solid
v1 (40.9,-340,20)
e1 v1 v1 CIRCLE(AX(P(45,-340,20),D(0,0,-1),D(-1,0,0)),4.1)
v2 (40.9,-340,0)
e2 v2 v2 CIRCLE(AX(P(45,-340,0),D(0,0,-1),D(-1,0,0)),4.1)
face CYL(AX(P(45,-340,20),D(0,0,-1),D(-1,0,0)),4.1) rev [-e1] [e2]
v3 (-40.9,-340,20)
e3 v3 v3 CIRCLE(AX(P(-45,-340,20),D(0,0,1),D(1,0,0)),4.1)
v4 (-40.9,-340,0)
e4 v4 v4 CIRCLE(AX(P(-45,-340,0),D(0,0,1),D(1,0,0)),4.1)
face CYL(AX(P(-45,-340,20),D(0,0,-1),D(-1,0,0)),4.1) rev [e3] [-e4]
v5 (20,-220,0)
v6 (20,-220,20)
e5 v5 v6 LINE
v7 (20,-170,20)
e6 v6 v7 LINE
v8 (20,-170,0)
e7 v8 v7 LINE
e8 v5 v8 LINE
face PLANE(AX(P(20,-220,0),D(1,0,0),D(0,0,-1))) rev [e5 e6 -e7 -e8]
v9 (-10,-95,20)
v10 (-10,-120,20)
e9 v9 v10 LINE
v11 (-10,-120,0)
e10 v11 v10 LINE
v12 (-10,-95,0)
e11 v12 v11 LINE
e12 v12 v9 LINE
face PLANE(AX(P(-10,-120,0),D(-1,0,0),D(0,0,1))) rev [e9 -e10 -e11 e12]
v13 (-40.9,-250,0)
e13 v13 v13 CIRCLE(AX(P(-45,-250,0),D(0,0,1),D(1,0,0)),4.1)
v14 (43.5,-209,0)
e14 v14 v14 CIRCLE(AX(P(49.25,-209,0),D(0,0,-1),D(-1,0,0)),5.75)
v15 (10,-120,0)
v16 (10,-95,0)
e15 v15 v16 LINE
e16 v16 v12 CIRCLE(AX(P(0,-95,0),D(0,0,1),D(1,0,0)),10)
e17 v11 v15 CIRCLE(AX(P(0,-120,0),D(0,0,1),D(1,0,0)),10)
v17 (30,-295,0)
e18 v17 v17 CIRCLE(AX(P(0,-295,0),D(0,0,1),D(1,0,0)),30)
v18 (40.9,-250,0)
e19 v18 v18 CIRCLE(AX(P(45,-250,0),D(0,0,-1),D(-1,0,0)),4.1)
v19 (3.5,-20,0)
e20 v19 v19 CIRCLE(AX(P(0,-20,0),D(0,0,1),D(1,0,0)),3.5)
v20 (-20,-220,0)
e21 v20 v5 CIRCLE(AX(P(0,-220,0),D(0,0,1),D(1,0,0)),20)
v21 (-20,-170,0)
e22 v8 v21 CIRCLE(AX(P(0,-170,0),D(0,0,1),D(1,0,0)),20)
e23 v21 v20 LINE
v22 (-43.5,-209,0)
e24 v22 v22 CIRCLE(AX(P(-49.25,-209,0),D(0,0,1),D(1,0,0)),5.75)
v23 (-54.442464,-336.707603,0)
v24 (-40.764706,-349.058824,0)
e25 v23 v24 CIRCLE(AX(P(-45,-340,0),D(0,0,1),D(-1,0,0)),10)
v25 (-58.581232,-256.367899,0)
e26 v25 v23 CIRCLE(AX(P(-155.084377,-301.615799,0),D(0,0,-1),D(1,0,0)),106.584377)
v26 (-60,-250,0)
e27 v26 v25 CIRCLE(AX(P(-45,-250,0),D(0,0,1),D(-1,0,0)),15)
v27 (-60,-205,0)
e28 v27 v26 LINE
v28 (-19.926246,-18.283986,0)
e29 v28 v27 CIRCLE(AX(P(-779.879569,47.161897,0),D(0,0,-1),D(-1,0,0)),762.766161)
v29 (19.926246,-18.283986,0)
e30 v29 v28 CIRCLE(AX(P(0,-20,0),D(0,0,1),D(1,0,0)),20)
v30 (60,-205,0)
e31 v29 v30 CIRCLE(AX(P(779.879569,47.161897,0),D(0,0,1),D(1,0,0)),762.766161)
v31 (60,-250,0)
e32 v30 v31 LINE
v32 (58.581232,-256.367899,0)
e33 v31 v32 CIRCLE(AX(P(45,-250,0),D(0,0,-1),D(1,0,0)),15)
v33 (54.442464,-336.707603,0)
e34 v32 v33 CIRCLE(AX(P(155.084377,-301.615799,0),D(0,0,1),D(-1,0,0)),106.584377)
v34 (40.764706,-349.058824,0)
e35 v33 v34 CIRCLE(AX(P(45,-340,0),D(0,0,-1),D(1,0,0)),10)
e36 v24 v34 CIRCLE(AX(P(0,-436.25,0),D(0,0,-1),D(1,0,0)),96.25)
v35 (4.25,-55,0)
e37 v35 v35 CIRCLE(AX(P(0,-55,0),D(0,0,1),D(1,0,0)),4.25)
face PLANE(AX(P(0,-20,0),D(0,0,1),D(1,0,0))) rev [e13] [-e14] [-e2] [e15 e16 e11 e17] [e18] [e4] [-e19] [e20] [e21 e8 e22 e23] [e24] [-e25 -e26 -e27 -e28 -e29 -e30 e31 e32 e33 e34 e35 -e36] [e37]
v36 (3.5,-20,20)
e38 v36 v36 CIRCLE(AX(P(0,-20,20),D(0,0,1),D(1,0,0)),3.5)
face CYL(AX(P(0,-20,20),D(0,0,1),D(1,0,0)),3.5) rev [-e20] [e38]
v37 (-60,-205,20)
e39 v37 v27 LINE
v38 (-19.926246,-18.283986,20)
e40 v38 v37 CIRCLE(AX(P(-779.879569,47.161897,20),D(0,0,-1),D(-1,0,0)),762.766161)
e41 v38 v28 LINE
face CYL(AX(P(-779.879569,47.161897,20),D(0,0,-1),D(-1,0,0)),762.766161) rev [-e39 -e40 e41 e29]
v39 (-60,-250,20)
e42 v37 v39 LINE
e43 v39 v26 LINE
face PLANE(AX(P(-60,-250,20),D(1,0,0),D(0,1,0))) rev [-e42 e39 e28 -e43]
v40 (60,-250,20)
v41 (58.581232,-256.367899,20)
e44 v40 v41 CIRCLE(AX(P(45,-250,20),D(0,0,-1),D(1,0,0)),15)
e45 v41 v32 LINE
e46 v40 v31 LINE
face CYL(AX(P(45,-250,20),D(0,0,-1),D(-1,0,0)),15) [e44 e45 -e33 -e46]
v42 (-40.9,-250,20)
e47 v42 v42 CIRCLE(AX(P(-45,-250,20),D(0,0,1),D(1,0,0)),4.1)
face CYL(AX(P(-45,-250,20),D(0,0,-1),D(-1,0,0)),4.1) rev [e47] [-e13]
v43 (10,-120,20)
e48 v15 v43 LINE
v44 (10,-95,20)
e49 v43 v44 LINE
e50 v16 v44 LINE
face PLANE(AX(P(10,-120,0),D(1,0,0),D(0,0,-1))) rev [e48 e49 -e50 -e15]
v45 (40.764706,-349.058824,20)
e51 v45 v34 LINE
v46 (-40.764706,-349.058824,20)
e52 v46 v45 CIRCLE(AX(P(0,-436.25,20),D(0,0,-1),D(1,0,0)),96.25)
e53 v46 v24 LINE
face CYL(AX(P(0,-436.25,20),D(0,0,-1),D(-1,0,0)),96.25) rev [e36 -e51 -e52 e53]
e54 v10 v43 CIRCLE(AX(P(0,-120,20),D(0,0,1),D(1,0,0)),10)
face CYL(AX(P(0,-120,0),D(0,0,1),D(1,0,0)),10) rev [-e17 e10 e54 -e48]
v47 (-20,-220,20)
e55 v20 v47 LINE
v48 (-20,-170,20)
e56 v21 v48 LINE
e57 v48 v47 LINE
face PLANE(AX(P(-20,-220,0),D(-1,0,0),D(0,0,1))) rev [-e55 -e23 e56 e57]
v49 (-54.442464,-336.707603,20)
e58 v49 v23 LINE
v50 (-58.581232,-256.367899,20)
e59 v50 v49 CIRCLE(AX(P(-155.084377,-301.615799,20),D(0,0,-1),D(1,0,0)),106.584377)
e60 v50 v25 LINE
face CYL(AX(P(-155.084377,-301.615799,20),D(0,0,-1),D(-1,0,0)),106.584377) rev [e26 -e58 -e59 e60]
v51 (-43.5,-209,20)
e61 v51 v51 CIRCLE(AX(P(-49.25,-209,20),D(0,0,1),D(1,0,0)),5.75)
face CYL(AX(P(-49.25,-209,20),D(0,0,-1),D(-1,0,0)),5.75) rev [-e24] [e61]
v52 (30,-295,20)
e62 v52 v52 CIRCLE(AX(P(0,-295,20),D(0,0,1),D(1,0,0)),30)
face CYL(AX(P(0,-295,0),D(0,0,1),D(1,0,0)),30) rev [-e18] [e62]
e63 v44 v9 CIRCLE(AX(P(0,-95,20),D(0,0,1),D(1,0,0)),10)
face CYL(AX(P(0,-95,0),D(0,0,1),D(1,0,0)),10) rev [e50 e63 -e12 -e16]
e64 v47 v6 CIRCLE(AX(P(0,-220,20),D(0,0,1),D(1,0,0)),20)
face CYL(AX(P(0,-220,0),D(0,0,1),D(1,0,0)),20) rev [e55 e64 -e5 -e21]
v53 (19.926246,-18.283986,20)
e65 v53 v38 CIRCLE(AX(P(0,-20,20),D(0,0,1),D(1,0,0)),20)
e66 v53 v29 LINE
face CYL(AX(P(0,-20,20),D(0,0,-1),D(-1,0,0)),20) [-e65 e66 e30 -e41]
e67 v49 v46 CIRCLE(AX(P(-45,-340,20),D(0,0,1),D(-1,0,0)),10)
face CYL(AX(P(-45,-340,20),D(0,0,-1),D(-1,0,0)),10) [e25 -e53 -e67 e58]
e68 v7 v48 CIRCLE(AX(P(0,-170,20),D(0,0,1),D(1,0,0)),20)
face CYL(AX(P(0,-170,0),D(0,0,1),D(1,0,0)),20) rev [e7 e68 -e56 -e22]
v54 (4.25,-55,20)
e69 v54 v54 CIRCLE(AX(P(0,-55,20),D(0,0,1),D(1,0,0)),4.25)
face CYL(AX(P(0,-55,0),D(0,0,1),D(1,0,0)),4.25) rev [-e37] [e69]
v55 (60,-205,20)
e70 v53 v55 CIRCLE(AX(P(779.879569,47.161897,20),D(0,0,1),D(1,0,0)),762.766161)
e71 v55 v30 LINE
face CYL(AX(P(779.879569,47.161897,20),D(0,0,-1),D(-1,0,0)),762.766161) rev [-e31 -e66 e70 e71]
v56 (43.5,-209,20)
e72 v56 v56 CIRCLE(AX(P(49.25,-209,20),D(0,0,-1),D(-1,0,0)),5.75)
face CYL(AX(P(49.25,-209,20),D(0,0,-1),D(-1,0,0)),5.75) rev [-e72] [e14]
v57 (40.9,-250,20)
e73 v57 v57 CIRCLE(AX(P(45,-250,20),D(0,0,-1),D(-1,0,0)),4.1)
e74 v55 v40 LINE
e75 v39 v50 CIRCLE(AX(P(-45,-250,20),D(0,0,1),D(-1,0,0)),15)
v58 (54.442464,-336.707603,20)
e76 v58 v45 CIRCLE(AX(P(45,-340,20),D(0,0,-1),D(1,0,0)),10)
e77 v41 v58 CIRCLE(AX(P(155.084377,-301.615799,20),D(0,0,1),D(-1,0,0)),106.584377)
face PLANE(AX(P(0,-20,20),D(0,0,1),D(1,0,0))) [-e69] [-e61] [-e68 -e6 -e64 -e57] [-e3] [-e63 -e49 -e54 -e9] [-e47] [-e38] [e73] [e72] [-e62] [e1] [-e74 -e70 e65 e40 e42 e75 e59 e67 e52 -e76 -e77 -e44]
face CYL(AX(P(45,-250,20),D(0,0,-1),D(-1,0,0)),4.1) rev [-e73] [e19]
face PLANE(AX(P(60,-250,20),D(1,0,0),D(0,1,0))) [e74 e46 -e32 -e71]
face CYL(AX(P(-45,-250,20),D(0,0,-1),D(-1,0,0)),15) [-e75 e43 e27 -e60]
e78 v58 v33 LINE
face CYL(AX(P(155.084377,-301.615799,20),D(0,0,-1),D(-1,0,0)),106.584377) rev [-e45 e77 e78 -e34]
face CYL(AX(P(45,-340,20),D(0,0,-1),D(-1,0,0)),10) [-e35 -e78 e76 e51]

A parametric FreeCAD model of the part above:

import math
import FreeCAD as App
import Part
import Sketcher

V = App.Vector
Q = App.Units.Quantity

doc = App.newDocument("Part")
params = doc.addObject("Spreadsheet::Sheet", "Params")
for row, (alias, value) in enumerate([
    ("sketch1_radius", "20 mm"),
    ("sketch1_radius2", "15 mm"),
    ("sketch1_radius3", "10 mm"),
    ("sketch1_diameter", "8.2 mm"),
    ("sketch1_diameter2", "11.5 mm"),
    ("pad1_length", "20 mm"),
    ("sketch2_diameter", "60 mm"),
    ("pocket1_length", "20 mm"),
    ("sketch3_radius", "20 mm"),
    ("sketch3_height", "50 mm"),
    ("pocket2_length", "20 mm"),
    ("sketch4_radius", "10 mm"),
    ("sketch4_height", "25 mm"),
    ("pocket3_length", "20 mm"),
    ("sketch5_diameter", "8.5 mm"),
    ("pocket4_length", "20 mm"),
    ("sketch6_diameter", "7 mm"),
    ("hole_diameter", "7 mm"),
], start=1):
    params.set(f"A{row}", alias)
    params.set(f"B{row}", "=" + value)
    params.setAlias(f"B{row}", alias)

body = doc.addObject("PartDesign::Body", "Body")

# Sketch on XY plane
sketch1 = body.newObject("Sketcher::SketchObject", "Sketch")
sketch1.AttachmentSupport = (doc.getObject("XY_Plane"), [""])
sketch1.MapMode = "FlatFace"
sketch1.addGeometry(Part.LineSegment(V(0, -340, 0), V(0, 0, 0)), False)
sketch1.addGeometry(Part.ArcOfCircle(Part.Circle(V(0, -20, 0), V(0, 0, 1), 20), math.radians(90), math.radians(175.077929)), False)
sketch1.addGeometry(Part.ArcOfCircle(Part.Circle(V(-779.879569, 47.161897, 0), V(0, 0, 1), 762.766161), math.radians(-19.304513), math.radians(-4.922071)), False)
sketch1.addGeometry(Part.LineSegment(V(-60, -205, 0), V(-60, -250, 0)), False)
sketch1.addGeometry(Part.ArcOfCircle(Part.Circle(V(-45, -250, 0), V(0, 0, 1), 15), math.radians(180), math.radians(205.120701)), False)
sketch1.addGeometry(Part.ArcOfCircle(Part.Circle(V(-155.084377, -301.615799, 0), V(0, 0, 1), 106.584377), math.radians(-19.222633), math.radians(25.120701)), False)
sketch1.addGeometry(Part.ArcOfCircle(Part.Circle(V(-45, -340, 0), V(0, 0, 1), 10), math.radians(160.777367), math.radians(295.057615)), False)
sketch1.addGeometry(Part.ArcOfCircle(Part.Circle(V(0, -436.25, 0), V(0, 0, 1), 96.25), math.radians(90), math.radians(115.057615)), False)
sketch1.addGeometry(Part.Circle(V(-45, -340, 0), V(0, 0, 1), 4.1), False)
sketch1.addGeometry(Part.Circle(V(-45, -250, 0), V(0, 0, 1), 4.1), False)
sketch1.addGeometry(Part.Circle(V(-49.25, -209, 0), V(0, 0, 1), 5.75), False)
sketch1.addConstraint(Sketcher.Constraint("Coincident", 0, 2, 1, 1))
sketch1.addConstraint(Sketcher.Constraint("Tangent", 1, 2, 2, 2))
sketch1.addConstraint(Sketcher.Constraint("Coincident", 2, 1, 3, 1))
sketch1.addConstraint(Sketcher.Constraint("Tangent", 3, 2, 4, 1))
sketch1.addConstraint(Sketcher.Constraint("Tangent", 4, 2, 5, 2))
sketch1.addConstraint(Sketcher.Constraint("Tangent", 5, 1, 6, 1))
sketch1.addConstraint(Sketcher.Constraint("Tangent", 6, 2, 7, 2))
sketch1.addConstraint(Sketcher.Constraint("Coincident", 7, 1, 0, 1))
sketch1.addConstraint(Sketcher.Constraint("Vertical", 0))
sketch1.addConstraint(Sketcher.Constraint("Vertical", 3))
sketch1.addConstraint(Sketcher.Constraint("Coincident", 0, 2, -1, 1))
sketch1.addConstraint(Sketcher.Constraint("Coincident", 8, 3, 6, 3))
sketch1.addConstraint(Sketcher.Constraint("Coincident", 9, 3, 4, 3))
sketch1.addConstraint(Sketcher.Constraint("Equal", 8, 9))
sketch1.addConstraint(Sketcher.Constraint("PointOnObject", 1, 3, -2))
sketch1.addConstraint(Sketcher.Constraint("PointOnObject", 7, 3, -2))
sketch1.addConstraint(Sketcher.Constraint("Horizontal", 8, 3, 7, 1))
sketch1.addConstraint(Sketcher.Constraint("Vertical", 4, 3, 6, 3))
sketch1.addConstraint(Sketcher.Constraint("Radius", 1, Q("20 mm")))
sketch1.addConstraint(Sketcher.Constraint("Radius", 4, Q("15 mm")))
sketch1.addConstraint(Sketcher.Constraint("Radius", 6, Q("10 mm")))
sketch1.addConstraint(Sketcher.Constraint("Diameter", 8, Q("8.2 mm")))
sketch1.addConstraint(Sketcher.Constraint("Diameter", 10, Q("11.5 mm")))
sketch1.addConstraint(Sketcher.Constraint("DistanceY", 0, 1, 0, 2, Q("340 mm")))
sketch1.addConstraint(Sketcher.Constraint("DistanceY", 3, 2, 3, 1, Q("45 mm")))
sketch1.addConstraint(Sketcher.Constraint("Radius", 7, Q("96.25 mm")))
sketch1.addConstraint(Sketcher.Constraint("DistanceY", 4, 3, -1, 1, Q("250 mm")))
sketch1.addConstraint(Sketcher.Constraint("DistanceY", 10, 3, -1, 1, Q("209 mm")))
sketch1.addConstraint(Sketcher.Constraint("DistanceX", 10, 3, -1, 1, Q("49.25 mm")))
sketch1.addConstraint(Sketcher.Constraint("Radius", 2, Q("762.766161 mm")))
sketch1.addConstraint(Sketcher.Constraint("Radius", 5, Q("106.584377 mm")))
sketch1.setExpression("Constraints[18]", "Params.sketch1_radius")
sketch1.setExpression("Constraints[19]", "Params.sketch1_radius2")
sketch1.setExpression("Constraints[20]", "Params.sketch1_radius3")
sketch1.setExpression("Constraints[21]", "Params.sketch1_diameter")
sketch1.setExpression("Constraints[22]", "Params.sketch1_diameter2")
pad1 = body.newObject("PartDesign::Pad", "Pad")
pad1.Profile = sketch1
pad1.setExpression("Length", "Params.pad1_length")
doc.recompute()

mirrored = body.newObject("PartDesign::Mirrored", "Mirrored")
mirrored.Originals = [pad1]
mirrored.MirrorPlane = (doc.getObject("YZ_Plane"), [""])
body.Tip = mirrored

# Sketch on XY plane
sketch2 = body.newObject("Sketcher::SketchObject", "Sketch001")
sketch2.AttachmentSupport = (doc.getObject("XY_Plane"), [""])
sketch2.MapMode = "FlatFace"
sketch2.AttachmentOffset = App.Placement(V(0, 0, 20), App.Rotation())
sketch2.addGeometry(Part.Circle(V(0, -295, 0), V(0, 0, 1), 30), False)
sketch2.addConstraint(Sketcher.Constraint("PointOnObject", 0, 3, -2))
sketch2.addConstraint(Sketcher.Constraint("Diameter", 0, Q("60 mm")))
sketch2.addConstraint(Sketcher.Constraint("DistanceY", 0, 3, -1, 1, Q("295 mm")))
sketch2.setExpression("Constraints[1]", "Params.sketch2_diameter")
pocket1 = body.newObject("PartDesign::Pocket", "Pocket")
pocket1.Profile = sketch2
pocket1.setExpression("Length", "Params.pocket1_length")

# Sketch on XY plane
sketch3 = body.newObject("Sketcher::SketchObject", "Sketch002")
sketch3.AttachmentSupport = (doc.getObject("XY_Plane"), [""])
sketch3.MapMode = "FlatFace"
sketch3.AttachmentOffset = App.Placement(V(0, 0, 20), App.Rotation())
sketch3.addGeometry(Part.LineSegment(V(-20, -170, 0), V(-20, -220, 0)), False)
sketch3.addGeometry(Part.ArcOfCircle(Part.Circle(V(0, -220, 0), V(0, 0, 1), 20), math.radians(180), math.radians(360)), False)
sketch3.addGeometry(Part.LineSegment(V(20, -220, 0), V(20, -170, 0)), False)
sketch3.addGeometry(Part.ArcOfCircle(Part.Circle(V(0, -170, 0), V(0, 0, 1), 20), math.radians(0), math.radians(180)), False)
sketch3.addConstraint(Sketcher.Constraint("Tangent", 0, 2, 1, 1))
sketch3.addConstraint(Sketcher.Constraint("Tangent", 1, 2, 2, 1))
sketch3.addConstraint(Sketcher.Constraint("Tangent", 2, 2, 3, 1))
sketch3.addConstraint(Sketcher.Constraint("Tangent", 3, 2, 0, 1))
sketch3.addConstraint(Sketcher.Constraint("Vertical", 0))
sketch3.addConstraint(Sketcher.Constraint("Vertical", 2))
sketch3.addConstraint(Sketcher.Constraint("PointOnObject", 1, 3, -2))
sketch3.addConstraint(Sketcher.Constraint("Radius", 1, Q("20 mm")))
sketch3.addConstraint(Sketcher.Constraint("DistanceY", 0, 2, 0, 1, Q("50 mm")))
sketch3.addConstraint(Sketcher.Constraint("DistanceY", 1, 3, -1, 1, Q("220 mm")))
sketch3.setExpression("Constraints[7]", "Params.sketch3_radius")
sketch3.setExpression("Constraints[8]", "Params.sketch3_height")
pocket2 = body.newObject("PartDesign::Pocket", "Pocket001")
pocket2.Profile = sketch3
pocket2.setExpression("Length", "Params.pocket2_length")

# Sketch on XY plane
sketch4 = body.newObject("Sketcher::SketchObject", "Sketch003")
sketch4.AttachmentSupport = (doc.getObject("XY_Plane"), [""])
sketch4.MapMode = "FlatFace"
sketch4.AttachmentOffset = App.Placement(V(0, 0, 20), App.Rotation())
sketch4.addGeometry(Part.LineSegment(V(-10, -95, 0), V(-10, -120, 0)), False)
sketch4.addGeometry(Part.ArcOfCircle(Part.Circle(V(0, -120, 0), V(0, 0, 1), 10), math.radians(180), math.radians(360)), False)
sketch4.addGeometry(Part.LineSegment(V(10, -120, 0), V(10, -95, 0)), False)
sketch4.addGeometry(Part.ArcOfCircle(Part.Circle(V(0, -95, 0), V(0, 0, 1), 10), math.radians(0), math.radians(180)), False)
sketch4.addConstraint(Sketcher.Constraint("Tangent", 0, 2, 1, 1))
sketch4.addConstraint(Sketcher.Constraint("Tangent", 1, 2, 2, 1))
sketch4.addConstraint(Sketcher.Constraint("Tangent", 2, 2, 3, 1))
sketch4.addConstraint(Sketcher.Constraint("Tangent", 3, 2, 0, 1))
sketch4.addConstraint(Sketcher.Constraint("Vertical", 0))
sketch4.addConstraint(Sketcher.Constraint("Vertical", 2))
sketch4.addConstraint(Sketcher.Constraint("PointOnObject", 1, 3, -2))
sketch4.addConstraint(Sketcher.Constraint("Radius", 1, Q("10 mm")))
sketch4.addConstraint(Sketcher.Constraint("DistanceY", 0, 2, 0, 1, Q("25 mm")))
sketch4.addConstraint(Sketcher.Constraint("DistanceY", 1, 3, -1, 1, Q("120 mm")))
sketch4.setExpression("Constraints[7]", "Params.sketch4_radius")
sketch4.setExpression("Constraints[8]", "Params.sketch4_height")
pocket3 = body.newObject("PartDesign::Pocket", "Pocket002")
pocket3.Profile = sketch4
pocket3.setExpression("Length", "Params.pocket3_length")

# Sketch on XY plane
sketch5 = body.newObject("Sketcher::SketchObject", "Sketch004")
sketch5.AttachmentSupport = (doc.getObject("XY_Plane"), [""])
sketch5.MapMode = "FlatFace"
sketch5.AttachmentOffset = App.Placement(V(0, 0, 20), App.Rotation())
sketch5.addGeometry(Part.Circle(V(0, -55, 0), V(0, 0, 1), 4.25), False)
sketch5.addConstraint(Sketcher.Constraint("PointOnObject", 0, 3, -2))
sketch5.addConstraint(Sketcher.Constraint("Diameter", 0, Q("8.5 mm")))
sketch5.addConstraint(Sketcher.Constraint("DistanceY", 0, 3, -1, 1, Q("55 mm")))
sketch5.setExpression("Constraints[1]", "Params.sketch5_diameter")
pocket4 = body.newObject("PartDesign::Pocket", "Pocket003")
pocket4.Profile = sketch5
pocket4.setExpression("Length", "Params.pocket4_length")

# Sketch on XY plane
sketch6 = body.newObject("Sketcher::SketchObject", "Sketch005")
sketch6.AttachmentSupport = (doc.getObject("XY_Plane"), [""])
sketch6.MapMode = "FlatFace"
sketch6.AttachmentOffset = App.Placement(V(0, 0, 20), App.Rotation())
sketch6.addGeometry(Part.Circle(V(0, -20, 0), V(0, 0, 1), 3.5), False)
sketch6.addConstraint(Sketcher.Constraint("PointOnObject", 0, 3, -2))
sketch6.addConstraint(Sketcher.Constraint("Diameter", 0, Q("7 mm")))
sketch6.addConstraint(Sketcher.Constraint("DistanceY", 0, 3, -1, 1, Q("20 mm")))
sketch6.setExpression("Constraints[1]", "Params.sketch6_diameter")
doc.recompute()
hole = body.newObject("PartDesign::Hole", "Hole")
hole.Profile = sketch6
hole.ThreadType = "None"
hole.setExpression("Diameter", "Params.hole_diameter")
hole.DepthType = "ThroughAll"

doc.recompute()
